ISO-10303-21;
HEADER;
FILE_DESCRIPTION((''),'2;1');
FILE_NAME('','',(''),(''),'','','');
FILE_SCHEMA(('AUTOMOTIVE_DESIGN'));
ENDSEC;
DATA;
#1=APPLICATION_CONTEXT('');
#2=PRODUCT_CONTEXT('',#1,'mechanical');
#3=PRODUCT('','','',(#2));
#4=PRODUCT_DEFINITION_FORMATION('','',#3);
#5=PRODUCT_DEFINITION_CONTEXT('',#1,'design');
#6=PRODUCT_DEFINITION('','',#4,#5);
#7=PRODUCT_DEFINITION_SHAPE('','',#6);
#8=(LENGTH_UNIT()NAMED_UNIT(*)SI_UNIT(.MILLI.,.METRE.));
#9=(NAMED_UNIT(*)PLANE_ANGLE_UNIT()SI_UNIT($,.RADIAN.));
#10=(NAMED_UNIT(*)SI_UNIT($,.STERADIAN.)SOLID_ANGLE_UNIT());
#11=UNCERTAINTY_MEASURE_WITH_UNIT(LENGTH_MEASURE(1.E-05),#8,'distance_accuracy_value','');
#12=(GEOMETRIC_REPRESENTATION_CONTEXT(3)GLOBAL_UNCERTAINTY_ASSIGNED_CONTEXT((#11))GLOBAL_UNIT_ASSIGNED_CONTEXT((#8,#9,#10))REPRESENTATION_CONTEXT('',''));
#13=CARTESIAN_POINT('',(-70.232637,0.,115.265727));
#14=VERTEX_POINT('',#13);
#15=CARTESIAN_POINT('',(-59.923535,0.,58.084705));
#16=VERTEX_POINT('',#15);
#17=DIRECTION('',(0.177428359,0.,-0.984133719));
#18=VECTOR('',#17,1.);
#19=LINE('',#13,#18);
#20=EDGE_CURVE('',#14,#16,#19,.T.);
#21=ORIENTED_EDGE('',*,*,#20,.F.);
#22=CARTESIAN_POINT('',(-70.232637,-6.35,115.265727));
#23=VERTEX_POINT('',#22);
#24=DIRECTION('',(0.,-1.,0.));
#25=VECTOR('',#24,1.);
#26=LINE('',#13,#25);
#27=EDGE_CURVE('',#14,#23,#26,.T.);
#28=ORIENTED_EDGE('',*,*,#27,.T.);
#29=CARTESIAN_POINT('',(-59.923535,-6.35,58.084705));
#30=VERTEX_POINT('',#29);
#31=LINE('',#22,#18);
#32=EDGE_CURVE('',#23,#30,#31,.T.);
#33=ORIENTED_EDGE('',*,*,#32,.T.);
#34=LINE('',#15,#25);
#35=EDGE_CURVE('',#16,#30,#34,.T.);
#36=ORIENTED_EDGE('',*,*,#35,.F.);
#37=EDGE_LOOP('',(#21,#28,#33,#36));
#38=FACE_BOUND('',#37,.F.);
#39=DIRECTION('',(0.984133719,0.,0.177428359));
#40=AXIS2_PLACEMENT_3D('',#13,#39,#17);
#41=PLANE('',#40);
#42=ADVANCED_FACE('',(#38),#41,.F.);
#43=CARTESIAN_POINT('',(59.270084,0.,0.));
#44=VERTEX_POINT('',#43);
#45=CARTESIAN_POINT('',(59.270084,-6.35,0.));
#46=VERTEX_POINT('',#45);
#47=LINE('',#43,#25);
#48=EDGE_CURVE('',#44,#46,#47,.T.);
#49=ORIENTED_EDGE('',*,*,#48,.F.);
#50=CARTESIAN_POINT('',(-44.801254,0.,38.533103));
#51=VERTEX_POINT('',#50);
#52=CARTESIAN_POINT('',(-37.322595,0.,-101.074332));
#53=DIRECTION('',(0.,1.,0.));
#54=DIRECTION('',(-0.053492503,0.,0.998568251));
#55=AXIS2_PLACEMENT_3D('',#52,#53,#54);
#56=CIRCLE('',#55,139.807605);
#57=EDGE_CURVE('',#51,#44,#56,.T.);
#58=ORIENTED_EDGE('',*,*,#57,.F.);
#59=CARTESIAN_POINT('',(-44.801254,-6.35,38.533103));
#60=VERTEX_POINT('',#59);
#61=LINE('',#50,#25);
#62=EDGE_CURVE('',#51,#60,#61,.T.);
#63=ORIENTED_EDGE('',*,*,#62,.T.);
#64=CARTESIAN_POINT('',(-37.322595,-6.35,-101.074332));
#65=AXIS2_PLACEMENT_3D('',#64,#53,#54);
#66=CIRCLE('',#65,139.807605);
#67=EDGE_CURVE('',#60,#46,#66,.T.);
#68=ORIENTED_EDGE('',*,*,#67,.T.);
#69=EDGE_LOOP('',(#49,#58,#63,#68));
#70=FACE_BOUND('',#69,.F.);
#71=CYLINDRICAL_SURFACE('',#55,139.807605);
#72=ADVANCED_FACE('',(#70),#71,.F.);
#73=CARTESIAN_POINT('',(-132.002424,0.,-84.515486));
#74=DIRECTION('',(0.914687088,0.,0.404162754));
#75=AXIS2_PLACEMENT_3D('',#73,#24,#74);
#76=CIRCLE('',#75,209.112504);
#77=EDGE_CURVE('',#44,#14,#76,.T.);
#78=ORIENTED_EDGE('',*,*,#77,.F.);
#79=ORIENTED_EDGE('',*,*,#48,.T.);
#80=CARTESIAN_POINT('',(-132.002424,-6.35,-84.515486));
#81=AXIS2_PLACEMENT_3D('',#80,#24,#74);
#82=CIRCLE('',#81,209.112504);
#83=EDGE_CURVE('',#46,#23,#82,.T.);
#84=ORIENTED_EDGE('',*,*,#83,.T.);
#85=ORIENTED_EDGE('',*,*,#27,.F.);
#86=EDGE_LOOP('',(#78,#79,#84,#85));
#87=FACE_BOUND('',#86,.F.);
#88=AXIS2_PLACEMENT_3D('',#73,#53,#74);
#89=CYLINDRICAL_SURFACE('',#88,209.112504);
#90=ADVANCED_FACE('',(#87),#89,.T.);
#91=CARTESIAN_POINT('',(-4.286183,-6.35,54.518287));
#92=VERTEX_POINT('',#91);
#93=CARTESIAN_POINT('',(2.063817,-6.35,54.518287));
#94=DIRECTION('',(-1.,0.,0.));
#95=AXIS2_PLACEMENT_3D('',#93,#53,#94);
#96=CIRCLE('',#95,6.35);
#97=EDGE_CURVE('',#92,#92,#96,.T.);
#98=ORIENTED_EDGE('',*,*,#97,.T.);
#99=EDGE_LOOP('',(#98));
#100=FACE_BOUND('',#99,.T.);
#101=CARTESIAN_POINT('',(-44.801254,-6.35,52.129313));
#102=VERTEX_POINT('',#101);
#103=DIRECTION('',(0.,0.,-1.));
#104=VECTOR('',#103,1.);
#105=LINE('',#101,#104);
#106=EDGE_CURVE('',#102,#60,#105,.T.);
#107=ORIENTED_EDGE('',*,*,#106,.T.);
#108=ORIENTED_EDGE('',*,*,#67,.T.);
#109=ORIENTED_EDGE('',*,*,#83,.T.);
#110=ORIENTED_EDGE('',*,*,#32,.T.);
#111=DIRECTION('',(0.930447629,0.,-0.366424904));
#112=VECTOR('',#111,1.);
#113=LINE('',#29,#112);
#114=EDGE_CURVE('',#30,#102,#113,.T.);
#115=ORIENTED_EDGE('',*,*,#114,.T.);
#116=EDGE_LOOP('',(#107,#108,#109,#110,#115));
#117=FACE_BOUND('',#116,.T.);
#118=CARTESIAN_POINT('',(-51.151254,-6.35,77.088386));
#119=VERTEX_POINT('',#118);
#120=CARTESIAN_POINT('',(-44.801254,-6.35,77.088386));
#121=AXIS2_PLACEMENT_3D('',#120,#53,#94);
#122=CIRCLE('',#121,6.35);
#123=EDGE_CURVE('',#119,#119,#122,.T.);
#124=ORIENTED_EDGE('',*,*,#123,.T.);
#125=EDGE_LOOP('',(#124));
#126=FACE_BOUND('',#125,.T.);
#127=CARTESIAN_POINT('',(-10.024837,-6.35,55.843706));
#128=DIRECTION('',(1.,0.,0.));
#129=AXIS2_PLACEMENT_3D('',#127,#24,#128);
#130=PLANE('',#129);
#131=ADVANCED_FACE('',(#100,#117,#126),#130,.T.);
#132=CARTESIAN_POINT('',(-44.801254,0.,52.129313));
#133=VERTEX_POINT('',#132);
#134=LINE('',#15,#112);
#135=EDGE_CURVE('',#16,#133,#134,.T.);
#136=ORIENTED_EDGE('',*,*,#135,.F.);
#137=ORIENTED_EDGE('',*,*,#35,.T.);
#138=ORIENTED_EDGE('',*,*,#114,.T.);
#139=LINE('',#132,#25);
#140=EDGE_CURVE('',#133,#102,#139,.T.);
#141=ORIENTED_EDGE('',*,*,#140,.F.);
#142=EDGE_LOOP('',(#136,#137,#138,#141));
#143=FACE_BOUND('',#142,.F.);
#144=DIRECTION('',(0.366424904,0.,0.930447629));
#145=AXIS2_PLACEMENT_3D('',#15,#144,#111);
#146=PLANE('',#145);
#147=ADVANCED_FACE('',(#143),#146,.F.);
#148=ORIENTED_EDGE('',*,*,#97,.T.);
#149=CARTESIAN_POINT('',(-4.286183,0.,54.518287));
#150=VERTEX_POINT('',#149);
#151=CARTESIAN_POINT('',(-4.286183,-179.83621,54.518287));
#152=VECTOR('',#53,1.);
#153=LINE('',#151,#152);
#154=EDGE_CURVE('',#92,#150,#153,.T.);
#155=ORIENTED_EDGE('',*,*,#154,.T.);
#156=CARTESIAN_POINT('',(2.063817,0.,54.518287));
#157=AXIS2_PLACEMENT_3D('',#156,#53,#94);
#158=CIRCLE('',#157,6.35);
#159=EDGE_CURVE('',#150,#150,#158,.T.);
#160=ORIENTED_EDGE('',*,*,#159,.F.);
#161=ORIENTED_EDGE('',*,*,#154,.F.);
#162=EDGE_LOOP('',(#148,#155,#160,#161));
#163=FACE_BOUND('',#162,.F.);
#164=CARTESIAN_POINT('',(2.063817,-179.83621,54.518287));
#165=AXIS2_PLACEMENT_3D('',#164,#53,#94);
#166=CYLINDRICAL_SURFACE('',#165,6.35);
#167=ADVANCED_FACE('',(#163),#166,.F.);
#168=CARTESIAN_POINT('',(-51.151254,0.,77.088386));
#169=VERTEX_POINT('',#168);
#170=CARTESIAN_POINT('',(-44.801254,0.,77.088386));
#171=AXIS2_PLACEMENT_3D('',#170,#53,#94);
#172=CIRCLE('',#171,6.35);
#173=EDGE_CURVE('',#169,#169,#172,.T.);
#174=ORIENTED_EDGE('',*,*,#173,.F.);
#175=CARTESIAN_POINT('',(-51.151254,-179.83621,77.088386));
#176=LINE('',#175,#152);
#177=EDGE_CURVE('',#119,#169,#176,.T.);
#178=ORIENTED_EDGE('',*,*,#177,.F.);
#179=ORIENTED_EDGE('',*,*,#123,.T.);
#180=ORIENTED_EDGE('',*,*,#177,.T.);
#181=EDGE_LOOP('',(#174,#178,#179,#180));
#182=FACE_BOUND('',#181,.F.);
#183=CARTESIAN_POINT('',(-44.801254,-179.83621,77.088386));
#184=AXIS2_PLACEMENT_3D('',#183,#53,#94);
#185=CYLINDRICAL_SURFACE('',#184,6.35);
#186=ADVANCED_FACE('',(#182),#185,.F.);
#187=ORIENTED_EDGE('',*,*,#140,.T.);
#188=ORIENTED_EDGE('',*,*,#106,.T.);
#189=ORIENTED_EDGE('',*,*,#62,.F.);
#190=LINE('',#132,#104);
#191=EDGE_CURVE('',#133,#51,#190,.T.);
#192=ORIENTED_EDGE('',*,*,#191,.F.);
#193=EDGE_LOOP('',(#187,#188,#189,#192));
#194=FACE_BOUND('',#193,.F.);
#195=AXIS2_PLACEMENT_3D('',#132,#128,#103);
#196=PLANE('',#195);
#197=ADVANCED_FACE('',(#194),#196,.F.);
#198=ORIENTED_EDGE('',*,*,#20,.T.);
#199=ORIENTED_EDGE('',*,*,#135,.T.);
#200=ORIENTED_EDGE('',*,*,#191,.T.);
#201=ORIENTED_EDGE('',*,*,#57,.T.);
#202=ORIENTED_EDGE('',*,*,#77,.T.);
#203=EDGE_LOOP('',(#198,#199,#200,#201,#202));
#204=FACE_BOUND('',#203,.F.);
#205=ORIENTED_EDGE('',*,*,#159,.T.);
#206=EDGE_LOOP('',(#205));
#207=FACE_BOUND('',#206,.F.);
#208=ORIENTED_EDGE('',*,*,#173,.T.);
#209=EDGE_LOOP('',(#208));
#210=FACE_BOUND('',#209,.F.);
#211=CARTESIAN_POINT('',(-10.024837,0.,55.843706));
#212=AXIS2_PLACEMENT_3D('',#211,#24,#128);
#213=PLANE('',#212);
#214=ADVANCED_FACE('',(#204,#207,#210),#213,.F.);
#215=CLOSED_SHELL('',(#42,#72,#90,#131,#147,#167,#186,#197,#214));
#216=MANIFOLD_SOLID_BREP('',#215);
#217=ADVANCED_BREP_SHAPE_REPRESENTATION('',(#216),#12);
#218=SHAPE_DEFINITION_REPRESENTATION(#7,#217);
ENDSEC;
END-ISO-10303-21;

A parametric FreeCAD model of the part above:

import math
import FreeCAD as App
import Part
import Sketcher
from FreeCAD import Vector
Q = App.Units.Quantity

doc = App.newDocument("Part")
body = doc.addObject("PartDesign::Body", "Body")

sketch1 = doc.addObject("Sketcher::SketchObject", "Sketch")
body.addObject(sketch1)
sketch1.AttachmentSupport = (doc.XZ_Plane, [""])
sketch1.MapMode = "FlatFace"
sketch1.addGeometry([
    Part.ArcOfCircle(Part.Circle(Vector(-37.322595, -101.074332, 0), Vector(0, 0, 1), 139.807605), math.radians(46.29883), math.radians(93.066358)),
    Part.ArcOfCircle(Part.Circle(Vector(-132.002424, -84.515486, 0), Vector(0, 0, 1), 209.112504), math.radians(23.838672), math.radians(72.819062)),
    Part.LineSegment(Vector(-70.232637, 115.265727, 0), Vector(-59.923535, 58.084705, 0)),
    Part.LineSegment(Vector(-59.923535, 58.084705, 0), Vector(-44.801254, 52.129313, 0)),
    Part.LineSegment(Vector(-44.801254, 52.129313, 0), Vector(-44.801254, 38.533103, 0)),
], False)
sketch1.addConstraint([
    Sketcher.Constraint("Coincident", 0, 1, 1, 1),
    Sketcher.Constraint("Coincident", 1, 2, 2, 1),
    Sketcher.Constraint("Coincident", 2, 2, 3, 1),
    Sketcher.Constraint("Coincident", 3, 2, 4, 1),
    Sketcher.Constraint("Coincident", 4, 2, 0, 2),
    Sketcher.Constraint("Vertical", 4),
    Sketcher.Constraint("PointOnObject", 0, 1, -1),
    Sketcher.Constraint("Radius", 0, 139.807605),
    Sketcher.Constraint("Radius", 1, 209.112504),
    Sketcher.Constraint("Distance", 2, 58.102899),
    Sketcher.Constraint("DistanceY", 4, 2, 4, 1, 13.59621),
    Sketcher.Constraint("DistanceY", 1, 3, 3, 2, 136.644799),
    Sketcher.Constraint("DistanceX", 1, 3, 0, 3, 94.679828),
    Sketcher.Constraint("DistanceX", 1, 2, 0, 1, 129.502721),
    Sketcher.Constraint("DistanceY", 2, 2, 1, 2, 57.181022),
    Sketcher.Constraint("DistanceX", 1, 3, 2, 2, 72.078889),
    Sketcher.Constraint("DistanceX", 0, 3, -1, 1, 37.322595),
])
pad1 = doc.addObject("PartDesign::Pad", "Pad")
body.addObject(pad1)
pad1.Profile = sketch1
pad1.Length = Q("0.25 in")

sketch2 = doc.addObject("Sketcher::SketchObject", "Sketch001")
body.addObject(sketch2)
sketch2.AttachmentSupport = (doc.XZ_Plane, [""])
sketch2.MapMode = "FlatFace"
sketch2.AttachmentOffset = App.Placement(Vector(0, 0, 0.25 * 25.4), App.Rotation())
sketch2.addGeometry([
    Part.Circle(Vector(-44.801254, 77.088386, 0), Vector(0, 0, 1), 6.35),
    Part.Circle(Vector(2.063817, 54.518287, 0), Vector(0, 0, 1), 6.35),
], False)
sketch2.addConstraint([
    Sketcher.Constraint("Equal", 0, 1),
    Sketcher.Constraint("Diameter", 0, Q("0.5 in")),
    Sketcher.Constraint("DistanceY", 1, 3, 0, 3, 22.570099),
    Sketcher.Constraint("DistanceX", 0, 3, 1, 3, 46.865071),
    Sketcher.Constraint("DistanceX", 0, 3, -1, 1, 44.801254),
    Sketcher.Constraint("DistanceY", -1, 1, 0, 3, 77.088386),
])
doc.recompute()
hole = doc.addObject("PartDesign::Hole", "Hole")
body.addObject(hole)
hole.Profile = sketch2
hole.ThreadType = "None"
hole.Diameter = Q("0.5 in")
hole.DepthType = "ThroughAll"

doc.recompute()
